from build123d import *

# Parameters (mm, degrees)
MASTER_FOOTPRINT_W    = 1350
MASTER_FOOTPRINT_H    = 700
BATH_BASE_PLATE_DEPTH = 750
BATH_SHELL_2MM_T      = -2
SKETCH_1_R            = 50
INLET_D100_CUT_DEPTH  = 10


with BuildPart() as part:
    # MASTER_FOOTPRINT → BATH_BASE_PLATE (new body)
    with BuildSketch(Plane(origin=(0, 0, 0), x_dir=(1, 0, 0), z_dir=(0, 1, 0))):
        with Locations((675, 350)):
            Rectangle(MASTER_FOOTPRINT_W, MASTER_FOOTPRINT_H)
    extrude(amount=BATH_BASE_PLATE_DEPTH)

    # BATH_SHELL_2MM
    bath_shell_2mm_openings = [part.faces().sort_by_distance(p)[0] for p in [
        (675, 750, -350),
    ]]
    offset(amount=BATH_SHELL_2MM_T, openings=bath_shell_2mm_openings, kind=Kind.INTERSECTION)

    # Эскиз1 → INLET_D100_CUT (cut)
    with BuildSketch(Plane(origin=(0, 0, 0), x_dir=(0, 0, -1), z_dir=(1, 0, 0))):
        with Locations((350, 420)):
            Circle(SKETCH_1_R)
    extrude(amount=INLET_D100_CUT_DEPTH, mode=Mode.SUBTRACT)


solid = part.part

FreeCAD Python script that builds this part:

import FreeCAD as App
import Part
import Sketcher

V = App.Vector


def faces_at(feature, points):
    """Names of the faces that lie closest to the given points."""
    faces = feature.Shape.Faces
    near = lambda p: min(range(len(faces)), key=lambda i: faces[i].distToShape(Part.Vertex(*p))[0])
    return sorted({f"Face{near(p) + 1}" for p in points})


def add_polygon(sketch, points):
    """Adds a closed chain of lines whose ends are joined by coincident constraints."""
    first, n = sketch.GeometryCount, len(points)
    for a, b in zip(points, points[1:] + points[:1]):
        sketch.addGeometry(Part.LineSegment(App.Vector(*a, 0), App.Vector(*b, 0)), False)
    for i in range(n):
        sketch.addConstraint(Sketcher.Constraint("Coincident", first + i, 2, first + (i + 1) % n, 1))

doc = App.newDocument("Part")
params = doc.addObject("Spreadsheet::Sheet", "Params")
for row, (alias, value) in enumerate([
    ("sketch1_width", "1350 mm"),
    ("sketch1_height", "700 mm"),
    ("pad1_length", "750 mm"),
    ("thickness_wall", "2 mm"),
    ("sketch2_diameter", "100 mm"),
    ("pocket1_length", "10 mm"),
], start=1):
    params.set(f"A{row}", alias)
    params.set(f"B{row}", "=" + value)
    params.setAlias(f"B{row}", alias)

body = doc.addObject("PartDesign::Body", "Body")

# Sketch on XZ plane
sketch1 = body.newObject("Sketcher::SketchObject", "Sketch")
sketch1.AttachmentSupport = (doc.getObject("XZ_Plane"), [""])
sketch1.MapMode = "FlatFace"
add_polygon(sketch1, [(0, -700), (0, 0), (1350, 0), (1350, -700)])  # lines 0-3
sketch1.addConstraint(Sketcher.Constraint("Vertical", 0))
sketch1.addConstraint(Sketcher.Constraint("Horizontal", 1))
sketch1.addConstraint(Sketcher.Constraint("Vertical", 2))
sketch1.addConstraint(Sketcher.Constraint("Horizontal", 3))
sketch1.addConstraint(Sketcher.Constraint("Coincident", 0, 2, -1, 1))
sketch1.addConstraint(Sketcher.Constraint("DistanceX", 1, 1, 1, 2, 1350.0))
sketch1.addConstraint(Sketcher.Constraint("DistanceY", 0, 1, 0, 2, 700.0))
sketch1.setExpression("Constraints[9]", "Params.sketch1_width")
sketch1.setExpression("Constraints[10]", "Params.sketch1_height")
pad1 = body.newObject("PartDesign::Pad", "Pad")
pad1.Profile = sketch1
pad1.setExpression("Length", "Params.pad1_length")
pad1.Reversed = True
doc.recompute()

thickness = body.newObject("PartDesign::Thickness", "Thickness")
thickness.Base = (pad1, faces_at(pad1, [(675, 750, -350)]))
thickness.setExpression("Value", "Params.thickness_wall")
thickness.Reversed = True
thickness.Join = "Intersection"

# Sketch on YZ plane
sketch2 = body.newObject("Sketcher::SketchObject", "Sketch001")
sketch2.AttachmentSupport = (doc.getObject("YZ_Plane"), [""])
sketch2.MapMode = "FlatFace"
sketch2.addGeometry(Part.Circle(V(420, -350, 0), V(0, 0, 1), 50), False)
sketch2.addConstraint(Sketcher.Constraint("Diameter", 0, 100.0))
sketch2.addConstraint(Sketcher.Constraint("DistanceX", -1, 1, 0, 3, 420.0))
sketch2.addConstraint(Sketcher.Constraint("DistanceY", 0, 3, -1, 1, 350.0))
sketch2.setExpression("Constraints[0]", "Params.sketch2_diameter")
pocket1 = body.newObject("PartDesign::Pocket", "Pocket")
pocket1.Profile = sketch2
pocket1.setExpression("Length", "Params.pocket1_length")
pocket1.Reversed = True

doc.recompute()
